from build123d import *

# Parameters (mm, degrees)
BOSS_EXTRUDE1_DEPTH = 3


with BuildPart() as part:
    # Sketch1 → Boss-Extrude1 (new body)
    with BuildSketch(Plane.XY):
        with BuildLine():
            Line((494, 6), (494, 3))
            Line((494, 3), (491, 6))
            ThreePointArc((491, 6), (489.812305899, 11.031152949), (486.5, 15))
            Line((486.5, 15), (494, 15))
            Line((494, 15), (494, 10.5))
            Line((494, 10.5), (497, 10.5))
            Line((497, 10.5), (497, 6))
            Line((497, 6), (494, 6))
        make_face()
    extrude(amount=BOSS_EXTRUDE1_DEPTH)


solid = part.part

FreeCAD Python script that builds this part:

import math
import FreeCAD as App
import Part
import Sketcher

V = App.Vector
Q = App.Units.Quantity

doc = App.newDocument("Part")
body = doc.addObject("PartDesign::Body", "Body")

# Sketch on XY plane
sketch1 = doc.addObject("Sketcher::SketchObject", "Sketch")
body.addObject(sketch1)
sketch1.AttachmentSupport = (doc.XY_Plane, [""])
sketch1.MapMode = "FlatFace"
sketch1.addGeometry(Part.LineSegment(V(494, 3, 0), V(494, 6, 0)), False)
sketch1.addGeometry(Part.LineSegment(V(494, 6, 0), V(497, 6, 0)), False)
sketch1.addGeometry(Part.LineSegment(V(497, 6, 0), V(497, 10.5, 0)), False)
sketch1.addGeometry(Part.LineSegment(V(497, 10.5, 0), V(494, 10.5, 0)), False)
sketch1.addGeometry(Part.LineSegment(V(494, 10.5, 0), V(494, 15, 0)), False)
sketch1.addGeometry(Part.LineSegment(V(494, 15, 0), V(486.5, 15, 0)), False)
sketch1.addGeometry(Part.ArcOfCircle(Part.Circle(V(479.8, 6, 0), V(0, 0, 1), 11.2), math.radians(0), math.radians(53)), False)
sketch1.addGeometry(Part.LineSegment(V(491, 6, 0), V(494, 3, 0)), False)
sketch1.addConstraint(Sketcher.Constraint("Coincident", 0, 2, 1, 1))
sketch1.addConstraint(Sketcher.Constraint("Coincident", 1, 2, 2, 1))
sketch1.addConstraint(Sketcher.Constraint("Coincident", 2, 2, 3, 1))
sketch1.addConstraint(Sketcher.Constraint("Coincident", 3, 2, 4, 1))
sketch1.addConstraint(Sketcher.Constraint("Coincident", 4, 2, 5, 1))
sketch1.addConstraint(Sketcher.Constraint("Coincident", 5, 2, 6, 2))
sketch1.addConstraint(Sketcher.Constraint("Coincident", 6, 1, 7, 1))
sketch1.addConstraint(Sketcher.Constraint("Coincident", 7, 2, 0, 1))
sketch1.addConstraint(Sketcher.Constraint("Vertical", 0))
sketch1.addConstraint(Sketcher.Constraint("Horizontal", 1))
sketch1.addConstraint(Sketcher.Constraint("Vertical", 2))
sketch1.addConstraint(Sketcher.Constraint("Horizontal", 3))
sketch1.addConstraint(Sketcher.Constraint("Vertical", 4))
sketch1.addConstraint(Sketcher.Constraint("Horizontal", 5))
sketch1.addConstraint(Sketcher.Constraint("Horizontal", 6, 3, 0, 2))
sketch1.addConstraint(Sketcher.Constraint("Horizontal", 1, 2, 6, 1))
sketch1.addConstraint(Sketcher.Constraint("Vertical", 0, 2, 3, 2))
sketch1.addConstraint(Sketcher.Constraint("Equal", 3, 0))
sketch1.addConstraint(Sketcher.Constraint("Equal", 2, 4))
sketch1.addConstraint(Sketcher.Constraint("DistanceX", 1, 1, 1, 2, Q("3 mm")))
sketch1.addConstraint(Sketcher.Constraint("Angle", 7, Q("-45 deg")))
sketch1.addConstraint(Sketcher.Constraint("Radius", 6, Q("11.25 mm")))
sketch1.addConstraint(Sketcher.Constraint("DistanceX", 5, 2, 5, 1, Q("7.5 mm")))
sketch1.addConstraint(Sketcher.Constraint("DistanceY", -1, 1, 6, 3, Q("6 mm")))
sketch1.addConstraint(Sketcher.Constraint("DistanceX", -1, 1, 0, 2, Q("494 mm")))
pad1 = doc.addObject("PartDesign::Pad", "Pad")
body.addObject(pad1)
pad1.Profile = sketch1
pad1.Length = 3

doc.recompute()
